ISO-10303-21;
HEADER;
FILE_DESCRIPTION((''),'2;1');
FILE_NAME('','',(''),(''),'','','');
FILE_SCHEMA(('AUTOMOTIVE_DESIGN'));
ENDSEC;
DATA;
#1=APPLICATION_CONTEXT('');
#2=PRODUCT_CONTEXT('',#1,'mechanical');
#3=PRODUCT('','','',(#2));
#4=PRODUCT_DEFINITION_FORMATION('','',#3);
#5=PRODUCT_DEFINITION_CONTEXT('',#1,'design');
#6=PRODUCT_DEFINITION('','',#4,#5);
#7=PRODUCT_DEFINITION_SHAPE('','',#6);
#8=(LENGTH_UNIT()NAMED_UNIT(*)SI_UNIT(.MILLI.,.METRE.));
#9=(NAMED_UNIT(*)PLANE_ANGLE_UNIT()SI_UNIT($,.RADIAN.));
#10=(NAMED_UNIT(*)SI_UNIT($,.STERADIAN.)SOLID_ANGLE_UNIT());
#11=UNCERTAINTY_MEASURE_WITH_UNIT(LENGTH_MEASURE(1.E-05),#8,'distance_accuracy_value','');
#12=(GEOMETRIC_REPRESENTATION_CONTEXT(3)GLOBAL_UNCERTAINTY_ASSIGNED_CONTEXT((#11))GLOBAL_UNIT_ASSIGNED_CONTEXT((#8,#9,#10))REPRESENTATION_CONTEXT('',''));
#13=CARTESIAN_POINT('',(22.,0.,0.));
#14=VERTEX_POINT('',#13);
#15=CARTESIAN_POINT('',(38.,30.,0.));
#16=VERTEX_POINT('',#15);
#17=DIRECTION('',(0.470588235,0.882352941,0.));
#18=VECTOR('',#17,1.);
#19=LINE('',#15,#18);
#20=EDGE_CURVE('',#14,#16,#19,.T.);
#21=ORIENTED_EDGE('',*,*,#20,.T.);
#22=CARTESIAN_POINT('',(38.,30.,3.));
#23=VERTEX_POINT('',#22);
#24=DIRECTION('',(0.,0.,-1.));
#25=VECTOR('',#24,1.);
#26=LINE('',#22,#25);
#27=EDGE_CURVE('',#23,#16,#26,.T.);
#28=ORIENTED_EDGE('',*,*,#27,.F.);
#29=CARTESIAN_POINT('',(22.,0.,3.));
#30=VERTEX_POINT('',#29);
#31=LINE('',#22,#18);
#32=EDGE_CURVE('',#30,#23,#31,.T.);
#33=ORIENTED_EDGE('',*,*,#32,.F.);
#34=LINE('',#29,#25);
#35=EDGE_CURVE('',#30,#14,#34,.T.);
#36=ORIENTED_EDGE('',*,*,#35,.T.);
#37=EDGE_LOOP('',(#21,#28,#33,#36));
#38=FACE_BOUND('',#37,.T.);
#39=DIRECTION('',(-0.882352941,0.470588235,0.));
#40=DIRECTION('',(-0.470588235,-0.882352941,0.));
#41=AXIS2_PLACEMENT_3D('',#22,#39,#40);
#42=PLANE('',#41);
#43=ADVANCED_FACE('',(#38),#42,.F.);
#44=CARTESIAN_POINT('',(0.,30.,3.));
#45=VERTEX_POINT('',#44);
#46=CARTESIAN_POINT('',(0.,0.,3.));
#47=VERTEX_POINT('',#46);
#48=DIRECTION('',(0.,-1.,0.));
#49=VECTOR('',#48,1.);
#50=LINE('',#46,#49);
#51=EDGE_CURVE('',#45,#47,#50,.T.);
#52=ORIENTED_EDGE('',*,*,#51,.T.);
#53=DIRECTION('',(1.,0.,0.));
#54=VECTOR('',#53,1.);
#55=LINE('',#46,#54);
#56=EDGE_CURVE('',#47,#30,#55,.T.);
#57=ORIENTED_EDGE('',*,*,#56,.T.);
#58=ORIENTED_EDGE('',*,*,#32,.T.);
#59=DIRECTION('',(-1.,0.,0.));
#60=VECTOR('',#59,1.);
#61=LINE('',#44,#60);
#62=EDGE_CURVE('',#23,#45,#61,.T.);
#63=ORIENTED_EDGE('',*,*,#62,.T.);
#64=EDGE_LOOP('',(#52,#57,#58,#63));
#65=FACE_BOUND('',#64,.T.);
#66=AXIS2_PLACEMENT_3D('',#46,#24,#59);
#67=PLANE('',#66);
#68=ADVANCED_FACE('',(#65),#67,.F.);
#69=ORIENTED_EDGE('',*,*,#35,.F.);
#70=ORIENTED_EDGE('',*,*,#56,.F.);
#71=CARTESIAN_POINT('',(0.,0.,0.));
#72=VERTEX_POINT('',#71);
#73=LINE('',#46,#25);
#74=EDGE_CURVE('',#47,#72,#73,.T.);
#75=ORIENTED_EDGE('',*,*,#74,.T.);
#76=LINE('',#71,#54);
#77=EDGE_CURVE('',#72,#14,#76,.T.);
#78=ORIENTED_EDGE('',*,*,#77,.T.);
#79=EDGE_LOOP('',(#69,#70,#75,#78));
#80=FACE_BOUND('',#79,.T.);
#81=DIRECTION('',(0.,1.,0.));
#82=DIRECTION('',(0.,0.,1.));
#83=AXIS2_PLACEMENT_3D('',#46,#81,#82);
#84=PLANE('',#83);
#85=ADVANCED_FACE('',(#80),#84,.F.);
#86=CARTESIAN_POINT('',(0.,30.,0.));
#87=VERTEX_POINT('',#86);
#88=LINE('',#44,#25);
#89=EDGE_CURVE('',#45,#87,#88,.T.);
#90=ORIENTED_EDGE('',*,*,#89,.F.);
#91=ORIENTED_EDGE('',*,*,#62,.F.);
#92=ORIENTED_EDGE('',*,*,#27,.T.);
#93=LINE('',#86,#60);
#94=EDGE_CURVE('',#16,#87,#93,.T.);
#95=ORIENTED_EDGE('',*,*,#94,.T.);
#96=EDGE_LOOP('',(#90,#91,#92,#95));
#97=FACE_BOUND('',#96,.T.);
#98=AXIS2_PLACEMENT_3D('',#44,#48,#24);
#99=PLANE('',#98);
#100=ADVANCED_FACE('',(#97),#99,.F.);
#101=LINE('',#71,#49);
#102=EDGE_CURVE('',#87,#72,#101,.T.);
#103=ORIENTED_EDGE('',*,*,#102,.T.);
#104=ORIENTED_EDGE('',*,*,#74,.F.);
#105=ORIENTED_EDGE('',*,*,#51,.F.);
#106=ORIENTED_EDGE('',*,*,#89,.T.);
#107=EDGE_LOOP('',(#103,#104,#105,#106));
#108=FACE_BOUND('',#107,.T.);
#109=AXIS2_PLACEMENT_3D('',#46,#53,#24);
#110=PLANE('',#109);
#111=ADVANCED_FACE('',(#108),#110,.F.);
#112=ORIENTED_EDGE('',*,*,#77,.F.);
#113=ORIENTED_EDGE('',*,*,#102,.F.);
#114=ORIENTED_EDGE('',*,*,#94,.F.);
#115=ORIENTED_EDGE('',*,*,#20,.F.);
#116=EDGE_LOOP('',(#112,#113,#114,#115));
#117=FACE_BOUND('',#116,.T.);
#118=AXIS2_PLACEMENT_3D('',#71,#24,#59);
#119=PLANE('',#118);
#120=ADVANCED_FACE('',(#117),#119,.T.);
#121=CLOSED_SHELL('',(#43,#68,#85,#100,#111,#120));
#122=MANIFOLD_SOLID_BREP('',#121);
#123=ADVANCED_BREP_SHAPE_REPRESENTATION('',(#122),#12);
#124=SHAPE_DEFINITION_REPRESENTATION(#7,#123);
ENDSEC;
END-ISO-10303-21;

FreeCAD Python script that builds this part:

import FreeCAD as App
import Part
import Sketcher
from FreeCAD import Vector


def add_polygon(sketch, points):
    """Adds a closed chain of lines whose ends are joined by coincident constraints."""
    first, n = sketch.GeometryCount, len(points)
    for a, b in zip(points, points[1:] + points[:1]):
        sketch.addGeometry(Part.LineSegment(App.Vector(*a, 0), App.Vector(*b, 0)), False)
    for i in range(n):
        sketch.addConstraint(Sketcher.Constraint("Coincident", first + i, 2, first + (i + 1) % n, 1))

doc = App.newDocument("Part")
body = doc.addObject("PartDesign::Body", "Body")

sketch1 = body.newObject("Sketcher::SketchObject", "Sketch")
sketch1.AttachmentSupport = (doc.getObject("XY_Plane"), [""])
sketch1.MapMode = "FlatFace"
add_polygon(sketch1, [(0, 0), (22, 0), (38, 30), (0, 30)])
sketch1.addConstraint([
    Sketcher.Constraint("Horizontal", 0),
    Sketcher.Constraint("Horizontal", 2),
    Sketcher.Constraint("Vertical", 3),
    Sketcher.Constraint("Coincident", 3, 2, -1, 1),
    Sketcher.Constraint("DistanceX", 0, 1, 0, 2, 22.0),
    Sketcher.Constraint("DistanceX", 2, 2, 2, 1, 38.0),
    Sketcher.Constraint("DistanceY", 3, 2, 3, 1, 30.0),
])
pad1 = body.newObject("PartDesign::Pad", "Pad")
pad1.Profile = sketch1
pad1.Length = 3

doc.recompute()
